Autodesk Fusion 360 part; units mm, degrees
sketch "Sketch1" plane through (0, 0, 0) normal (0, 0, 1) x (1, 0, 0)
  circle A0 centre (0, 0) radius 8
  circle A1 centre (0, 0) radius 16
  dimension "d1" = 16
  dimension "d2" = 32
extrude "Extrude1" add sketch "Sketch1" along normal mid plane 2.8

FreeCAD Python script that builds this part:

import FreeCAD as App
import Part
import Sketcher

V = App.Vector
Q = App.Units.Quantity

doc = App.newDocument("Part")
body = doc.addObject("PartDesign::Body", "Body")

# Sketch on XY plane
sketch1 = body.newObject("Sketcher::SketchObject", "Sketch")
sketch1.AttachmentSupport = (doc.getObject("XY_Plane"), [""])
sketch1.MapMode = "FlatFace"
sketch1.addGeometry([
    Part.Circle(V(0, 0, 0), V(0, 0, 1), 16),
    Part.Circle(V(0, 0, 0), V(0, 0, 1), 8),
], False)
sketch1.addConstraint([
    Sketcher.Constraint("Coincident", 0, 3, -1, 1),
    Sketcher.Constraint("Coincident", 1, 3, -1, 1),
    Sketcher.Constraint("Diameter", 0, Q("32 mm")),
    Sketcher.Constraint("Diameter", 1, Q("16 mm")),
])
pad1 = body.newObject("PartDesign::Pad", "Pad")
pad1.Profile = sketch1
pad1.Length = 2.8
pad1.Midplane = True

doc.recompute()
